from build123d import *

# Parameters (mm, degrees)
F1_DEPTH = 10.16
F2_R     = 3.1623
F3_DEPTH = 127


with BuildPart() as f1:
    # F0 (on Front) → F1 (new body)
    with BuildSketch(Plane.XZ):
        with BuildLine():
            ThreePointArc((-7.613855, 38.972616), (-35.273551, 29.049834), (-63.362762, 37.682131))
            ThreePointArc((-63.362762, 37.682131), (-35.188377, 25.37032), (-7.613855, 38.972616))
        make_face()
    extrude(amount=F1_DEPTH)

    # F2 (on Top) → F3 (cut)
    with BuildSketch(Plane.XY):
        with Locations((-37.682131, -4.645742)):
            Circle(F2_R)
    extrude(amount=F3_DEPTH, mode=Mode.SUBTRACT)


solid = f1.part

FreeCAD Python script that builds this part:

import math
import FreeCAD as App
import Part
import Sketcher

V = App.Vector
Q = App.Units.Quantity

doc = App.newDocument("Part")
body = doc.addObject("PartDesign::Body", "Body")

# Sketch on XZ plane
sketch1 = body.newObject("Sketcher::SketchObject", "Sketch")
sketch1.AttachmentSupport = (doc.getObject("XZ_Plane"), [""])
sketch1.MapMode = "FlatFace"
sketch1.addGeometry(Part.ArcOfCircle(Part.Circle(V(-36, 76, 0), V(0, 0, 1), 47), math.radians(-125), math.radians(-52)), False)
sketch1.addGeometry(Part.ArcOfCircle(Part.Circle(V(-36, 62, 0), V(0, 0, 1), 36), math.radians(-139), math.radians(-39)), False)
sketch1.addConstraint(Sketcher.Constraint("Coincident", 0, 1, 1, 1))
sketch1.addConstraint(Sketcher.Constraint("Coincident", 1, 2, 0, 2))
sketch1.addConstraint(Sketcher.Constraint("Radius", 1, Q("36.47139 mm")))
sketch1.addConstraint(Sketcher.Constraint("Radius", 0, Q("46.525757 mm")))
sketch1.addConstraint(Sketcher.Constraint("DistanceY", 0, 1, 0, 3, Q("37.881 mm")))
sketch1.addConstraint(Sketcher.Constraint("DistanceX", 0, 3, -1, 1, Q("36.350248 mm")))
sketch1.addConstraint(Sketcher.Constraint("DistanceY", -1, 1, 0, 3, Q("75.563131 mm")))
sketch1.addConstraint(Sketcher.Constraint("DistanceX", 0, 3, 1, 3, Q("0.317852 mm")))
pad1 = body.newObject("PartDesign::Pad", "Pad")
pad1.Profile = sketch1
pad1.Length = Q("0.4 in")

# Sketch on XY plane
sketch2 = body.newObject("Sketcher::SketchObject", "Sketch001")
sketch2.AttachmentSupport = (doc.getObject("XY_Plane"), [""])
sketch2.MapMode = "FlatFace"
sketch2.addGeometry(Part.Circle(V(-37.7, -4.6, 0), V(0, 0, 1), 3.2), False)
sketch2.addConstraint(Sketcher.Constraint("Diameter", 0, Q("0.249 in")))
sketch2.addConstraint(Sketcher.Constraint("DistanceX", 0, 3, -1, 1, Q("37.682131 mm")))
sketch2.addConstraint(Sketcher.Constraint("DistanceY", 0, 3, -1, 1, Q("4.645742 mm")))
pocket1 = body.newObject("PartDesign::Pocket", "Pocket")
pocket1.Profile = sketch2
pocket1.Length = Q("5 in")
pocket1.Reversed = True

doc.recompute()
